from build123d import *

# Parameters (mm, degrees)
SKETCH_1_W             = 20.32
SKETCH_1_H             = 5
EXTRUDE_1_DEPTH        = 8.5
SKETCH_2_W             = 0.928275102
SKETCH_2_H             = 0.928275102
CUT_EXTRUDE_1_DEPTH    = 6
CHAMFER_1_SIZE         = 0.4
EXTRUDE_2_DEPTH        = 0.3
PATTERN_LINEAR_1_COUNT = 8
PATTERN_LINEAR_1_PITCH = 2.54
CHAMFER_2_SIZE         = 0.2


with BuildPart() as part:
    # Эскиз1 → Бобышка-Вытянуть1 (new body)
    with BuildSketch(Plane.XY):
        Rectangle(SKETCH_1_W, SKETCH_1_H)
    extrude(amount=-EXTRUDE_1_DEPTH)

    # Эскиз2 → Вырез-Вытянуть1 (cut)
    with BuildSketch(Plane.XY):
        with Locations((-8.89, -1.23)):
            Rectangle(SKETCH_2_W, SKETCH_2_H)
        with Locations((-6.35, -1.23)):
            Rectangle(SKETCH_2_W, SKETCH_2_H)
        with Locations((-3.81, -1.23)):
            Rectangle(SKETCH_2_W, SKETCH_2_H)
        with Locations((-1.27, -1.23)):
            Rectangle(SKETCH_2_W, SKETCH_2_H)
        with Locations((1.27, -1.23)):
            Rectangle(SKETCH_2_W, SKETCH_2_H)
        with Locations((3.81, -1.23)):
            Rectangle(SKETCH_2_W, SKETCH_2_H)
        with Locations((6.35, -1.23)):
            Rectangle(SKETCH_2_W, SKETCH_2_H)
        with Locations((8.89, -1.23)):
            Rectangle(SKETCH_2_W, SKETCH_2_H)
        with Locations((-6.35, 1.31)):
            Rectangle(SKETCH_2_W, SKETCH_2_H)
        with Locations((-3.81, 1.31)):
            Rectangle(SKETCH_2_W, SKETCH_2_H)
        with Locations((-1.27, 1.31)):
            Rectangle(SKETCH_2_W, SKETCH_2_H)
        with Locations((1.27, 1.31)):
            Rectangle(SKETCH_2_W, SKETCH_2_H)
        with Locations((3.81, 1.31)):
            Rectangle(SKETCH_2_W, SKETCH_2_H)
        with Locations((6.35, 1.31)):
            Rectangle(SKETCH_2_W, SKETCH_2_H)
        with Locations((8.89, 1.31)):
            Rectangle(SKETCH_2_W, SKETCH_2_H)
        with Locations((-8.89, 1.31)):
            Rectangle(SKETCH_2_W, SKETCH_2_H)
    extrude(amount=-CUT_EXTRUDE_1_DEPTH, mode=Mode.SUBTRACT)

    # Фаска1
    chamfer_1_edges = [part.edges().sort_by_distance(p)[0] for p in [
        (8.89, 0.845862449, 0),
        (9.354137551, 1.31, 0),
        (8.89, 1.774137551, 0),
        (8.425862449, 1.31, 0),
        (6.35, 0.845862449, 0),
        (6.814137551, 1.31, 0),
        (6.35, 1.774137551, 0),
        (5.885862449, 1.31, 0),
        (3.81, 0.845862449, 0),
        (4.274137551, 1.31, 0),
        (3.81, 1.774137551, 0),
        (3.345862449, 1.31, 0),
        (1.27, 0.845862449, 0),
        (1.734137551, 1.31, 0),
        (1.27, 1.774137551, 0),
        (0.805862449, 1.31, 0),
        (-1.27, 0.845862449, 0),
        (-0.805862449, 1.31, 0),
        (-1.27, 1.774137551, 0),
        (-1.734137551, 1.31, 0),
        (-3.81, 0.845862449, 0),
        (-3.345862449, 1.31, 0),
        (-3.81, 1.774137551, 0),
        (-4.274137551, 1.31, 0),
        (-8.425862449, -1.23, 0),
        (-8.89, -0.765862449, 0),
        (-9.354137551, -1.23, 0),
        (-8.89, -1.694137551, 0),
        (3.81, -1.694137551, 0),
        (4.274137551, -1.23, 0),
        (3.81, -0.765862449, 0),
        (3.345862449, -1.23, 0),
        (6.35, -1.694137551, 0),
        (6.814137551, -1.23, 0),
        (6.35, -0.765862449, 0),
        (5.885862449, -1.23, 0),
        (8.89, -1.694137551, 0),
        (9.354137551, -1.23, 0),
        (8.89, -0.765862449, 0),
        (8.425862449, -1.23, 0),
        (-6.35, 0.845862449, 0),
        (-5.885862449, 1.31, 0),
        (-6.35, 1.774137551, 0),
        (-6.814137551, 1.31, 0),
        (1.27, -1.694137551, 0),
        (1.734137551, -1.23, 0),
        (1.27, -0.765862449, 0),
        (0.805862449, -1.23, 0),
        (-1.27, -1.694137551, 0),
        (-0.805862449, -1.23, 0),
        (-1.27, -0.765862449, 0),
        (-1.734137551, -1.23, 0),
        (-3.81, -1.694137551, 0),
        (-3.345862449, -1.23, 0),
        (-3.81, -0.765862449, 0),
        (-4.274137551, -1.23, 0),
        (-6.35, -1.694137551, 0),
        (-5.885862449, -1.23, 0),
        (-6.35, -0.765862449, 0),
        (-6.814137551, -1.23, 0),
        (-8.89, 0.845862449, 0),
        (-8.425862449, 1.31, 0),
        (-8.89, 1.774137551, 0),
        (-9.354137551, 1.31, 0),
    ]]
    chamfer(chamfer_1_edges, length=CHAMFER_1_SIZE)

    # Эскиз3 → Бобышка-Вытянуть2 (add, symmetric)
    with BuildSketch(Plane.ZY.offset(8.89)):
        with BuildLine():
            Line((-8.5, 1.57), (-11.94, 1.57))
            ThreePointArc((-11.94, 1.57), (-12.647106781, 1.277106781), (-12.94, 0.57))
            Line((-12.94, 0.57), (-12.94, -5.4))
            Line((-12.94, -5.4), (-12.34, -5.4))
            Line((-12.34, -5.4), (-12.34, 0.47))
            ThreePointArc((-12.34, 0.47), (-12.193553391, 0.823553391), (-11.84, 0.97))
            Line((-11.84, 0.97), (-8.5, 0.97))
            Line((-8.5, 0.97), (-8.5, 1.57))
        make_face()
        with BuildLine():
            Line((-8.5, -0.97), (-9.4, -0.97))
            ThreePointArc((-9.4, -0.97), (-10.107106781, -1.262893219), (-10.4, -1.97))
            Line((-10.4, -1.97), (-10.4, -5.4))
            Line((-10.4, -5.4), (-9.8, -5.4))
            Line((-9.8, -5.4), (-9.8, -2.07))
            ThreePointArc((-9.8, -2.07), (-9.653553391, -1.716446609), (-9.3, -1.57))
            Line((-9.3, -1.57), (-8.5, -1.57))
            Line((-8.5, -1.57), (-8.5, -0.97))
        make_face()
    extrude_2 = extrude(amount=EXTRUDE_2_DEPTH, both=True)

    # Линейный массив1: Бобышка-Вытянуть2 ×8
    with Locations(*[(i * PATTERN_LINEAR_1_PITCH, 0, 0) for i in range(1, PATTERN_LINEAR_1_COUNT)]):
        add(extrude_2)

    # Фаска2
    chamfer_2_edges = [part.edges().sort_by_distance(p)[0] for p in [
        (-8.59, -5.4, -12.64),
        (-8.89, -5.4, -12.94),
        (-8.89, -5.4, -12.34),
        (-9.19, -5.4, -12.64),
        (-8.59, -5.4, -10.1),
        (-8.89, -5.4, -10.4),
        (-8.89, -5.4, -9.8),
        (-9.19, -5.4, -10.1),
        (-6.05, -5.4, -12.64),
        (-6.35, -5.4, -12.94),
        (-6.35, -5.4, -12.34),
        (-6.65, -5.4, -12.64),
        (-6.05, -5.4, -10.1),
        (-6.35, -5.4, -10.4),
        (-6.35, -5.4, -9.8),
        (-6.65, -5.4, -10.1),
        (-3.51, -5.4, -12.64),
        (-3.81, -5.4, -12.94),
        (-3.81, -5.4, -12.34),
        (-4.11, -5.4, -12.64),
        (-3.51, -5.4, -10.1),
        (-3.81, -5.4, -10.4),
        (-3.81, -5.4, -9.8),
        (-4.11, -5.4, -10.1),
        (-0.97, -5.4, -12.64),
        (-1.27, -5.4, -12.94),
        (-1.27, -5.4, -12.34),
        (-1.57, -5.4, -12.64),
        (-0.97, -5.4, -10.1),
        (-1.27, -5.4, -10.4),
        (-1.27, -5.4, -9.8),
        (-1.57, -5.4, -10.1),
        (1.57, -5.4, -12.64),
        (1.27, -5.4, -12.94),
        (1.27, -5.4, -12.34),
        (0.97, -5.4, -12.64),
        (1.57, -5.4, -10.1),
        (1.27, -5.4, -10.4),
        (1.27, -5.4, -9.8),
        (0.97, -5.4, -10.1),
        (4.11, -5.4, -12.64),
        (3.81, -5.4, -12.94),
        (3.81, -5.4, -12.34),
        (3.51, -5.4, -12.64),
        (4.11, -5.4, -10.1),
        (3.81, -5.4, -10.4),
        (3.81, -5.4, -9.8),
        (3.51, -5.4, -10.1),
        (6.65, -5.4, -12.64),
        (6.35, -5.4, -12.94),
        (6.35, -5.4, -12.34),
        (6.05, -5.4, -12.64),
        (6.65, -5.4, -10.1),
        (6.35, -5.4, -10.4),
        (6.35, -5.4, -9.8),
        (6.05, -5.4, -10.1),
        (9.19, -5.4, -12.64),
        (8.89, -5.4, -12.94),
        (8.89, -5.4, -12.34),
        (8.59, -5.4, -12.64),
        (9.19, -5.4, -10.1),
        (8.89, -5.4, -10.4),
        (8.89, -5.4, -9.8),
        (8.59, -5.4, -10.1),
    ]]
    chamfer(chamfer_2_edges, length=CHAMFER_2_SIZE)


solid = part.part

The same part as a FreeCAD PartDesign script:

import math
import FreeCAD as App
import Part
import Sketcher


def edges_at(feature, points):
    """Names of the edges that pass closest to the given points."""
    edges = feature.Shape.Edges
    near = lambda p: min(range(len(edges)), key=lambda i: edges[i].distToShape(Part.Vertex(*p))[0])
    return sorted({f"Edge{near(p) + 1}" for p in points})

doc = App.newDocument("Part")
body = doc.addObject("PartDesign::Body", "Body")

sketch1 = doc.addObject("Sketcher::SketchObject", "Sketch")
body.addObject(sketch1)
sketch1.AttachmentSupport = (doc.XY_Plane, [""])
sketch1.MapMode = "FlatFace"
sketch1.addGeometry(Part.LineSegment(App.Vector(-10.16, 2.5, 0), App.Vector(-10.16, -2.5, 0)), False)
sketch1.addGeometry(Part.LineSegment(App.Vector(-10.16, -2.5, 0), App.Vector(10.16, -2.5, 0)), False)
sketch1.addGeometry(Part.LineSegment(App.Vector(10.16, -2.5, 0), App.Vector(10.16, 2.5, 0)), False)
sketch1.addGeometry(Part.LineSegment(App.Vector(10.16, 2.5, 0), App.Vector(-10.16, 2.5, 0)), False)
sketch1.addConstraint(Sketcher.Constraint("Coincident", 0, 2, 1, 1))
sketch1.addConstraint(Sketcher.Constraint("Coincident", 1, 2, 2, 1))
sketch1.addConstraint(Sketcher.Constraint("Coincident", 2, 2, 3, 1))
sketch1.addConstraint(Sketcher.Constraint("Coincident", 3, 2, 0, 1))
sketch1.addConstraint(Sketcher.Constraint("Vertical", 0))
sketch1.addConstraint(Sketcher.Constraint("Horizontal", 1))
sketch1.addConstraint(Sketcher.Constraint("Vertical", 2))
sketch1.addConstraint(Sketcher.Constraint("Horizontal", 3))
sketch1.addConstraint(Sketcher.Constraint("Symmetric", 0, 2, 2, 2, -1, 1))
sketch1.addConstraint(Sketcher.Constraint("DistanceY", 0, 2, 0, 1, 5.0))
sketch1.addConstraint(Sketcher.Constraint("DistanceX", 1, 1, 1, 2, 20.32))
pad1 = doc.addObject("PartDesign::Pad", "Pad")
body.addObject(pad1)
pad1.Profile = sketch1
pad1.Length = 8.5
pad1.Reversed = True

sketch2 = doc.addObject("Sketcher::SketchObject", "Sketch001")
body.addObject(sketch2)
sketch2.AttachmentSupport = (doc.XY_Plane, [""])
sketch2.MapMode = "FlatFace"
sketch2.addGeometry(Part.LineSegment(App.Vector(-9.354138, -0.765862, 0), App.Vector(-9.354138, -1.694138, 0)), False)
sketch2.addGeometry(Part.LineSegment(App.Vector(-9.354138, -1.694138, 0), App.Vector(-8.425862, -1.694138, 0)), False)
sketch2.addGeometry(Part.LineSegment(App.Vector(-8.425862, -1.694138, 0), App.Vector(-8.425862, -0.765862, 0)), False)
sketch2.addGeometry(Part.LineSegment(App.Vector(-8.425862, -0.765862, 0), App.Vector(-9.354138, -0.765862, 0)), False)
sketch2.addGeometry(Part.LineSegment(App.Vector(-6.814138, -0.765862, 0), App.Vector(-6.814138, -1.694138, 0)), False)
sketch2.addGeometry(Part.LineSegment(App.Vector(-6.814138, -1.694138, 0), App.Vector(-5.885862, -1.694138, 0)), False)
sketch2.addGeometry(Part.LineSegment(App.Vector(-5.885862, -1.694138, 0), App.Vector(-5.885862, -0.765862, 0)), False)
sketch2.addGeometry(Part.LineSegment(App.Vector(-5.885862, -0.765862, 0), App.Vector(-6.814138, -0.765862, 0)), False)
sketch2.addGeometry(Part.LineSegment(App.Vector(-4.274138, -0.765862, 0), App.Vector(-4.274138, -1.694138, 0)), False)
sketch2.addGeometry(Part.LineSegment(App.Vector(-4.274138, -1.694138, 0), App.Vector(-3.345862, -1.694138, 0)), False)
sketch2.addGeometry(Part.LineSegment(App.Vector(-3.345862, -1.694138, 0), App.Vector(-3.345862, -0.765862, 0)), False)
sketch2.addGeometry(Part.LineSegment(App.Vector(-3.345862, -0.765862, 0), App.Vector(-4.274138, -0.765862, 0)), False)
sketch2.addGeometry(Part.LineSegment(App.Vector(-1.734138, -0.765862, 0), App.Vector(-1.734138, -1.694138, 0)), False)
sketch2.addGeometry(Part.LineSegment(App.Vector(-1.734138, -1.694138, 0), App.Vector(-0.805862, -1.694138, 0)), False)
sketch2.addGeometry(Part.LineSegment(App.Vector(-0.805862, -1.694138, 0), App.Vector(-0.805862, -0.765862, 0)), False)
sketch2.addGeometry(Part.LineSegment(App.Vector(-0.805862, -0.765862, 0), App.Vector(-1.734138, -0.765862, 0)), False)
sketch2.addGeometry(Part.LineSegment(App.Vector(0.805862, -0.765862, 0), App.Vector(0.805862, -1.694138, 0)), False)
sketch2.addGeometry(Part.LineSegment(App.Vector(0.805862, -1.694138, 0), App.Vector(1.734138, -1.694138, 0)), False)
sketch2.addGeometry(Part.LineSegment(App.Vector(1.734138, -1.694138, 0), App.Vector(1.734138, -0.765862, 0)), False)
sketch2.addGeometry(Part.LineSegment(App.Vector(1.734138, -0.765862, 0), App.Vector(0.805862, -0.765862, 0)), False)
sketch2.addGeometry(Part.LineSegment(App.Vector(3.345862, -0.765862, 0), App.Vector(3.345862, -1.694138, 0)), False)
sketch2.addGeometry(Part.LineSegment(App.Vector(3.345862, -1.694138, 0), App.Vector(4.274138, -1.694138, 0)), False)
sketch2.addGeometry(Part.LineSegment(App.Vector(4.274138, -1.694138, 0), App.Vector(4.274138, -0.765862, 0)), False)
sketch2.addGeometry(Part.LineSegment(App.Vector(4.274138, -0.765862, 0), App.Vector(3.345862, -0.765862, 0)), False)
sketch2.addGeometry(Part.LineSegment(App.Vector(5.885862, -0.765862, 0), App.Vector(5.885862, -1.694138, 0)), False)
sketch2.addGeometry(Part.LineSegment(App.Vector(5.885862, -1.694138, 0), App.Vector(6.814138, -1.694138, 0)), False)
sketch2.addGeometry(Part.LineSegment(App.Vector(6.814138, -1.694138, 0), App.Vector(6.814138, -0.765862, 0)), False)
sketch2.addGeometry(Part.LineSegment(App.Vector(6.814138, -0.765862, 0), App.Vector(5.885862, -0.765862, 0)), False)
sketch2.addGeometry(Part.LineSegment(App.Vector(8.425862, -0.765862, 0), App.Vector(8.425862, -1.694138, 0)), False)
sketch2.addGeometry(Part.LineSegment(App.Vector(8.425862, -1.694138, 0), App.Vector(9.354138, -1.694138, 0)), False)
sketch2.addGeometry(Part.LineSegment(App.Vector(9.354138, -1.694138, 0), App.Vector(9.354138, -0.765862, 0)), False)
sketch2.addGeometry(Part.LineSegment(App.Vector(9.354138, -0.765862, 0), App.Vector(8.425862, -0.765862, 0)), False)
sketch2.addGeometry(Part.LineSegment(App.Vector(-6.814138, 1.774138, 0), App.Vector(-6.814138, 0.845862, 0)), False)
sketch2.addGeometry(Part.LineSegment(App.Vector(-6.814138, 0.845862, 0), App.Vector(-5.885862, 0.845862, 0)), False)
sketch2.addGeometry(Part.LineSegment(App.Vector(-5.885862, 0.845862, 0), App.Vector(-5.885862, 1.774138, 0)), False)
sketch2.addGeometry(Part.LineSegment(App.Vector(-5.885862, 1.774138, 0), App.Vector(-6.814138, 1.774138, 0)), False)
sketch2.addGeometry(Part.LineSegment(App.Vector(-4.274138, 1.774138, 0), App.Vector(-4.274138, 0.845862, 0)), False)
sketch2.addGeometry(Part.LineSegment(App.Vector(-4.274138, 0.845862, 0), App.Vector(-3.345862, 0.845862, 0)), False)
sketch2.addGeometry(Part.LineSegment(App.Vector(-3.345862, 0.845862, 0), App.Vector(-3.345862, 1.774138, 0)), False)
sketch2.addGeometry(Part.LineSegment(App.Vector(-3.345862, 1.774138, 0), App.Vector(-4.274138, 1.774138, 0)), False)
sketch2.addGeometry(Part.LineSegment(App.Vector(-1.734138, 1.774138, 0), App.Vector(-1.734138, 0.845862, 0)), False)
sketch2.addGeometry(Part.LineSegment(App.Vector(-1.734138, 0.845862, 0), App.Vector(-0.805862, 0.845862, 0)), False)
sketch2.addGeometry(Part.LineSegment(App.Vector(-0.805862, 0.845862, 0), App.Vector(-0.805862, 1.774138, 0)), False)
sketch2.addGeometry(Part.LineSegment(App.Vector(-0.805862, 1.774138, 0), App.Vector(-1.734138, 1.774138, 0)), False)
sketch2.addGeometry(Part.LineSegment(App.Vector(0.805862, 1.774138, 0), App.Vector(0.805862, 0.845862, 0)), False)
sketch2.addGeometry(Part.LineSegment(App.Vector(0.805862, 0.845862, 0), App.Vector(1.734138, 0.845862, 0)), False)
sketch2.addGeometry(Part.LineSegment(App.Vector(1.734138, 0.845862, 0), App.Vector(1.734138, 1.774138, 0)), False)
sketch2.addGeometry(Part.LineSegment(App.Vector(1.734138, 1.774138, 0), App.Vector(0.805862, 1.774138, 0)), False)
sketch2.addGeometry(Part.LineSegment(App.Vector(3.345862, 1.774138, 0), App.Vector(3.345862, 0.845862, 0)), False)
sketch2.addGeometry(Part.LineSegment(App.Vector(3.345862, 0.845862, 0), App.Vector(4.274138, 0.845862, 0)), False)
sketch2.addGeometry(Part.LineSegment(App.Vector(4.274138, 0.845862, 0), App.Vector(4.274138, 1.774138, 0)), False)
sketch2.addGeometry(Part.LineSegment(App.Vector(4.274138, 1.774138, 0), App.Vector(3.345862, 1.774138, 0)), False)
sketch2.addGeometry(Part.LineSegment(App.Vector(5.885862, 1.774138, 0), App.Vector(5.885862, 0.845862, 0)), False)
sketch2.addGeometry(Part.LineSegment(App.Vector(5.885862, 0.845862, 0), App.Vector(6.814138, 0.845862, 0)), False)
sketch2.addGeometry(Part.LineSegment(App.Vector(6.814138, 0.845862, 0), App.Vector(6.814138, 1.774138, 0)), False)
sketch2.addGeometry(Part.LineSegment(App.Vector(6.814138, 1.774138, 0), App.Vector(5.885862, 1.774138, 0)), False)
sketch2.addGeometry(Part.LineSegment(App.Vector(8.425862, 1.774138, 0), App.Vector(8.425862, 0.845862, 0)), False)
sketch2.addGeometry(Part.LineSegment(App.Vector(8.425862, 0.845862, 0), App.Vector(9.354138, 0.845862, 0)), False)
sketch2.addGeometry(Part.LineSegment(App.Vector(9.354138, 0.845862, 0), App.Vector(9.354138, 1.774138, 0)), False)
sketch2.addGeometry(Part.LineSegment(App.Vector(9.354138, 1.774138, 0), App.Vector(8.425862, 1.774138, 0)), False)
sketch2.addGeometry(Part.LineSegment(App.Vector(-9.354138, 1.774138, 0), App.Vector(-9.354138, 0.845862, 0)), False)
sketch2.addGeometry(Part.LineSegment(App.Vector(-9.354138, 0.845862, 0), App.Vector(-8.425862, 0.845862, 0)), False)
sketch2.addGeometry(Part.LineSegment(App.Vector(-8.425862, 0.845862, 0), App.Vector(-8.425862, 1.774138, 0)), False)
sketch2.addGeometry(Part.LineSegment(App.Vector(-8.425862, 1.774138, 0), App.Vector(-9.354138, 1.774138, 0)), False)
sketch2.addConstraint(Sketcher.Constraint("Coincident", 0, 2, 1, 1))
sketch2.addConstraint(Sketcher.Constraint("Coincident", 1, 2, 2, 1))
sketch2.addConstraint(Sketcher.Constraint("Coincident", 2, 2, 3, 1))
sketch2.addConstraint(Sketcher.Constraint("Coincident", 3, 2, 0, 1))
sketch2.addConstraint(Sketcher.Constraint("Coincident", 4, 2, 5, 1))
sketch2.addConstraint(Sketcher.Constraint("Coincident", 5, 2, 6, 1))
sketch2.addConstraint(Sketcher.Constraint("Coincident", 6, 2, 7, 1))
sketch2.addConstraint(Sketcher.Constraint("Coincident", 7, 2, 4, 1))
sketch2.addConstraint(Sketcher.Constraint("Coincident", 8, 2, 9, 1))
sketch2.addConstraint(Sketcher.Constraint("Coincident", 9, 2, 10, 1))
sketch2.addConstraint(Sketcher.Constraint("Coincident", 10, 2, 11, 1))
sketch2.addConstraint(Sketcher.Constraint("Coincident", 11, 2, 8, 1))
sketch2.addConstraint(Sketcher.Constraint("Coincident", 12, 2, 13, 1))
sketch2.addConstraint(Sketcher.Constraint("Coincident", 13, 2, 14, 1))
sketch2.addConstraint(Sketcher.Constraint("Coincident", 14, 2, 15, 1))
sketch2.addConstraint(Sketcher.Constraint("Coincident", 15, 2, 12, 1))
sketch2.addConstraint(Sketcher.Constraint("Coincident", 16, 2, 17, 1))
sketch2.addConstraint(Sketcher.Constraint("Coincident", 17, 2, 18, 1))
sketch2.addConstraint(Sketcher.Constraint("Coincident", 18, 2, 19, 1))
sketch2.addConstraint(Sketcher.Constraint("Coincident", 19, 2, 16, 1))
sketch2.addConstraint(Sketcher.Constraint("Coincident", 20, 2, 21, 1))
sketch2.addConstraint(Sketcher.Constraint("Coincident", 21, 2, 22, 1))
sketch2.addConstraint(Sketcher.Constraint("Coincident", 22, 2, 23, 1))
sketch2.addConstraint(Sketcher.Constraint("Coincident", 23, 2, 20, 1))
sketch2.addConstraint(Sketcher.Constraint("Coincident", 24, 2, 25, 1))
sketch2.addConstraint(Sketcher.Constraint("Coincident", 25, 2, 26, 1))
sketch2.addConstraint(Sketcher.Constraint("Coincident", 26, 2, 27, 1))
sketch2.addConstraint(Sketcher.Constraint("Coincident", 27, 2, 24, 1))
sketch2.addConstraint(Sketcher.Constraint("Coincident", 28, 2, 29, 1))
sketch2.addConstraint(Sketcher.Constraint("Coincident", 29, 2, 30, 1))
sketch2.addConstraint(Sketcher.Constraint("Coincident", 30, 2, 31, 1))
sketch2.addConstraint(Sketcher.Constraint("Coincident", 31, 2, 28, 1))
sketch2.addConstraint(Sketcher.Constraint("Coincident", 32, 2, 33, 1))
sketch2.addConstraint(Sketcher.Constraint("Coincident", 33, 2, 34, 1))
sketch2.addConstraint(Sketcher.Constraint("Coincident", 34, 2, 35, 1))
sketch2.addConstraint(Sketcher.Constraint("Coincident", 35, 2, 32, 1))
sketch2.addConstraint(Sketcher.Constraint("Coincident", 36, 2, 37, 1))
sketch2.addConstraint(Sketcher.Constraint("Coincident", 37, 2, 38, 1))
sketch2.addConstraint(Sketcher.Constraint("Coincident", 38, 2, 39, 1))
sketch2.addConstraint(Sketcher.Constraint("Coincident", 39, 2, 36, 1))
sketch2.addConstraint(Sketcher.Constraint("Coincident", 40, 2, 41, 1))
sketch2.addConstraint(Sketcher.Constraint("Coincident", 41, 2, 42, 1))
sketch2.addConstraint(Sketcher.Constraint("Coincident", 42, 2, 43, 1))
sketch2.addConstraint(Sketcher.Constraint("Coincident", 43, 2, 40, 1))
sketch2.addConstraint(Sketcher.Constraint("Coincident", 44, 2, 45, 1))
sketch2.addConstraint(Sketcher.Constraint("Coincident", 45, 2, 46, 1))
sketch2.addConstraint(Sketcher.Constraint("Coincident", 46, 2, 47, 1))
sketch2.addConstraint(Sketcher.Constraint("Coincident", 47, 2, 44, 1))
sketch2.addConstraint(Sketcher.Constraint("Coincident", 48, 2, 49, 1))
sketch2.addConstraint(Sketcher.Constraint("Coincident", 49, 2, 50, 1))
sketch2.addConstraint(Sketcher.Constraint("Coincident", 50, 2, 51, 1))
sketch2.addConstraint(Sketcher.Constraint("Coincident", 51, 2, 48, 1))
sketch2.addConstraint(Sketcher.Constraint("Coincident", 52, 2, 53, 1))
sketch2.addConstraint(Sketcher.Constraint("Coincident", 53, 2, 54, 1))
sketch2.addConstraint(Sketcher.Constraint("Coincident", 54, 2, 55, 1))
sketch2.addConstraint(Sketcher.Constraint("Coincident", 55, 2, 52, 1))
sketch2.addConstraint(Sketcher.Constraint("Coincident", 56, 2, 57, 1))
sketch2.addConstraint(Sketcher.Constraint("Coincident", 57, 2, 58, 1))
sketch2.addConstraint(Sketcher.Constraint("Coincident", 58, 2, 59, 1))
sketch2.addConstraint(Sketcher.Constraint("Coincident", 59, 2, 56, 1))
sketch2.addConstraint(Sketcher.Constraint("Coincident", 60, 2, 61, 1))
sketch2.addConstraint(Sketcher.Constraint("Coincident", 61, 2, 62, 1))
sketch2.addConstraint(Sketcher.Constraint("Coincident", 62, 2, 63, 1))
sketch2.addConstraint(Sketcher.Constraint("Coincident", 63, 2, 60, 1))
sketch2.addConstraint(Sketcher.Constraint("Vertical", 0))
sketch2.addConstraint(Sketcher.Constraint("Horizontal", 1))
sketch2.addConstraint(Sketcher.Constraint("Vertical", 2))
sketch2.addConstraint(Sketcher.Constraint("Horizontal", 3))
sketch2.addConstraint(Sketcher.Constraint("Vertical", 4))
sketch2.addConstraint(Sketcher.Constraint("Horizontal", 5))
sketch2.addConstraint(Sketcher.Constraint("Vertical", 6))
sketch2.addConstraint(Sketcher.Constraint("Horizontal", 7))
sketch2.addConstraint(Sketcher.Constraint("Vertical", 8))
sketch2.addConstraint(Sketcher.Constraint("Horizontal", 9))
sketch2.addConstraint(Sketcher.Constraint("Vertical", 10))
sketch2.addConstraint(Sketcher.Constraint("Horizontal", 11))
sketch2.addConstraint(Sketcher.Constraint("Vertical", 12))
sketch2.addConstraint(Sketcher.Constraint("Horizontal", 13))
sketch2.addConstraint(Sketcher.Constraint("Vertical", 14))
sketch2.addConstraint(Sketcher.Constraint("Horizontal", 15))
sketch2.addConstraint(Sketcher.Constraint("Vertical", 16))
sketch2.addConstraint(Sketcher.Constraint("Horizontal", 17))
sketch2.addConstraint(Sketcher.Constraint("Vertical", 18))
sketch2.addConstraint(Sketcher.Constraint("Horizontal", 19))
sketch2.addConstraint(Sketcher.Constraint("Vertical", 20))
sketch2.addConstraint(Sketcher.Constraint("Horizontal", 21))
sketch2.addConstraint(Sketcher.Constraint("Vertical", 22))
sketch2.addConstraint(Sketcher.Constraint("Horizontal", 23))
sketch2.addConstraint(Sketcher.Constraint("Vertical", 24))
sketch2.addConstraint(Sketcher.Constraint("Horizontal", 25))
sketch2.addConstraint(Sketcher.Constraint("Vertical", 26))
sketch2.addConstraint(Sketcher.Constraint("Horizontal", 27))
sketch2.addConstraint(Sketcher.Constraint("Vertical", 28))
sketch2.addConstraint(Sketcher.Constraint("Horizontal", 29))
sketch2.addConstraint(Sketcher.Constraint("Vertical", 30))
sketch2.addConstraint(Sketcher.Constraint("Horizontal", 31))
sketch2.addConstraint(Sketcher.Constraint("Vertical", 32))
sketch2.addConstraint(Sketcher.Constraint("Horizontal", 33))
sketch2.addConstraint(Sketcher.Constraint("Vertical", 34))
sketch2.addConstraint(Sketcher.Constraint("Horizontal", 35))
sketch2.addConstraint(Sketcher.Constraint("Vertical", 36))
sketch2.addConstraint(Sketcher.Constraint("Horizontal", 37))
sketch2.addConstraint(Sketcher.Constraint("Vertical", 38))
sketch2.addConstraint(Sketcher.Constraint("Horizontal", 39))
sketch2.addConstraint(Sketcher.Constraint("Vertical", 40))
sketch2.addConstraint(Sketcher.Constraint("Horizontal", 41))
sketch2.addConstraint(Sketcher.Constraint("Vertical", 42))
sketch2.addConstraint(Sketcher.Constraint("Horizontal", 43))
sketch2.addConstraint(Sketcher.Constraint("Vertical", 44))
sketch2.addConstraint(Sketcher.Constraint("Horizontal", 45))
sketch2.addConstraint(Sketcher.Constraint("Vertical", 46))
sketch2.addConstraint(Sketcher.Constraint("Horizontal", 47))
sketch2.addConstraint(Sketcher.Constraint("Vertical", 48))
sketch2.addConstraint(Sketcher.Constraint("Horizontal", 49))
sketch2.addConstraint(Sketcher.Constraint("Vertical", 50))
sketch2.addConstraint(Sketcher.Constraint("Horizontal", 51))
sketch2.addConstraint(Sketcher.Constraint("Vertical", 52))
sketch2.addConstraint(Sketcher.Constraint("Horizontal", 53))
sketch2.addConstraint(Sketcher.Constraint("Vertical", 54))
sketch2.addConstraint(Sketcher.Constraint("Horizontal", 55))
sketch2.addConstraint(Sketcher.Constraint("Vertical", 56))
sketch2.addConstraint(Sketcher.Constraint("Horizontal", 57))
sketch2.addConstraint(Sketcher.Constraint("Vertical", 58))
sketch2.addConstraint(Sketcher.Constraint("Horizontal", 59))
sketch2.addConstraint(Sketcher.Constraint("Vertical", 60))
sketch2.addConstraint(Sketcher.Constraint("Horizontal", 61))
sketch2.addConstraint(Sketcher.Constraint("Vertical", 62))
sketch2.addConstraint(Sketcher.Constraint("Horizontal", 63))
sketch2.addConstraint(Sketcher.Constraint("Symmetric", 13, 2, 16, 2, -2))
sketch2.addConstraint(Sketcher.Constraint("Symmetric", 15, 2, 18, 2, -2))
sketch2.addConstraint(Sketcher.Constraint("Symmetric", 9, 2, 20, 2, -2))
sketch2.addConstraint(Sketcher.Constraint("Symmetric", 11, 2, 22, 2, -2))
sketch2.addConstraint(Sketcher.Constraint("Symmetric", 5, 2, 24, 2, -2))
sketch2.addConstraint(Sketcher.Constraint("Symmetric", 7, 2, 26, 2, -2))
sketch2.addConstraint(Sketcher.Constraint("Symmetric", 1, 2, 28, 2, -2))
sketch2.addConstraint(Sketcher.Constraint("Symmetric", 3, 2, 30, 2, -2))
sketch2.addConstraint(Sketcher.Constraint("Symmetric", 41, 2, 44, 2, -2))
sketch2.addConstraint(Sketcher.Constraint("Symmetric", 43, 2, 46, 2, -2))
sketch2.addConstraint(Sketcher.Constraint("Symmetric", 37, 2, 48, 2, -2))
sketch2.addConstraint(Sketcher.Constraint("Symmetric", 39, 2, 50, 2, -2))
sketch2.addConstraint(Sketcher.Constraint("Symmetric", 33, 2, 52, 2, -2))
sketch2.addConstraint(Sketcher.Constraint("Symmetric", 35, 2, 54, 2, -2))
sketch2.addConstraint(Sketcher.Constraint("Symmetric", 57, 2, 60, 2, -2))
sketch2.addConstraint(Sketcher.Constraint("Symmetric", 59, 2, 62, 2, -2))
sketch2.addConstraint(Sketcher.Constraint("Horizontal", 1, 2, 4, 2))
sketch2.addConstraint(Sketcher.Constraint("Horizontal", 3, 2, 6, 2))
sketch2.addConstraint(Sketcher.Constraint("Horizontal", 5, 2, 8, 2))
sketch2.addConstraint(Sketcher.Constraint("Horizontal", 7, 2, 10, 2))
sketch2.addConstraint(Sketcher.Constraint("Horizontal", 9, 2, 12, 2))
sketch2.addConstraint(Sketcher.Constraint("Horizontal", 11, 2, 14, 2))
sketch2.addConstraint(Sketcher.Constraint("Horizontal", 33, 2, 36, 2))
sketch2.addConstraint(Sketcher.Constraint("Horizontal", 35, 2, 38, 2))
sketch2.addConstraint(Sketcher.Constraint("Horizontal", 37, 2, 40, 2))
sketch2.addConstraint(Sketcher.Constraint("Horizontal", 39, 2, 42, 2))
sketch2.addConstraint(Sketcher.Constraint("Horizontal", 53, 2, 56, 2))
sketch2.addConstraint(Sketcher.Constraint("Horizontal", 55, 2, 58, 2))
sketch2.addConstraint(Sketcher.Constraint("Vertical", 7, 2, 32, 2))
sketch2.addConstraint(Sketcher.Constraint("Vertical", 6, 2, 33, 2))
sketch2.addConstraint(Sketcher.Constraint("Vertical", 11, 2, 36, 2))
sketch2.addConstraint(Sketcher.Constraint("Vertical", 10, 2, 37, 2))
sketch2.addConstraint(Sketcher.Constraint("Vertical", 15, 2, 40, 2))
sketch2.addConstraint(Sketcher.Constraint("Vertical", 14, 2, 41, 2))
sketch2.addConstraint(Sketcher.Constraint("Vertical", 31, 2, 56, 2))
sketch2.addConstraint(Sketcher.Constraint("Vertical", 30, 2, 57, 2))
sketch2.addConstraint(Sketcher.Constraint("Equal", 3, 5))
sketch2.addConstraint(Sketcher.Constraint("Equal", 7, 9))
sketch2.addConstraint(Sketcher.Constraint("Equal", 11, 13))
sketch2.addConstraint(Sketcher.Constraint("Equal", 63, 0))
sketch2.addConstraint(Sketcher.Constraint("Equal", 30, 32))
sketch2.addConstraint(Sketcher.Constraint("DistanceX", 1, 1, 1, 2, 0.928275))
sketch2.addConstraint(Sketcher.Constraint("DistanceX", 0, 2, -1, 1, 9.354138))
sketch2.addConstraint(Sketcher.Constraint("DistanceY", 0, 2, -1, 1, 1.694138))
sketch2.addConstraint(Sketcher.Constraint("DistanceX", 4, 2, -1, 1, 6.814138))
sketch2.addConstraint(Sketcher.Constraint("DistanceX", 8, 2, -1, 1, 4.274138))
sketch2.addConstraint(Sketcher.Constraint("DistanceX", 12, 2, -1, 1, 1.734138))
sketch2.addConstraint(Sketcher.Constraint("DistanceY", -1, 1, 32, 2, 0.845862))
pocket1 = doc.addObject("PartDesign::Pocket", "Pocket")
body.addObject(pocket1)
pocket1.Profile = sketch2
pocket1.Length = 6
doc.recompute()

chamfer = doc.addObject("PartDesign::Chamfer", "Chamfer")
body.addObject(chamfer)
chamfer.Base = (pocket1, edges_at(pocket1, [
    (8.89, 0.846, 0),
    (9.354, 1.31, 0),
    (8.89, 1.774, 0),
    (8.426, 1.31, 0),
    (6.35, 0.846, 0),
    (6.814, 1.31, 0),
    (6.35, 1.774, 0),
    (5.886, 1.31, 0),
    (3.81, 0.846, 0),
    (4.274, 1.31, 0),
    (3.81, 1.774, 0),
    (3.346, 1.31, 0),
    (1.27, 0.846, 0),
    (1.734, 1.31, 0),
    (1.27, 1.774, 0),
    (0.806, 1.31, 0),
    (-1.27, 0.846, 0),
    (-0.806, 1.31, 0),
    (-1.27, 1.774, 0),
    (-1.734, 1.31, 0),
    (-3.81, 0.846, 0),
    (-3.346, 1.31, 0),
    (-3.81, 1.774, 0),
    (-4.274, 1.31, 0),
    (-8.426, -1.23, 0),
    (-8.89, -0.766, 0),
    (-9.354, -1.23, 0),
    (-8.89, -1.694, 0),
    (3.81, -1.694, 0),
    (4.274, -1.23, 0),
    (3.81, -0.766, 0),
    (3.346, -1.23, 0),
    (6.35, -1.694, 0),
    (6.814, -1.23, 0),
    (6.35, -0.766, 0),
    (5.886, -1.23, 0),
    (8.89, -1.694, 0),
    (9.354, -1.23, 0),
    (8.89, -0.766, 0),
    (8.426, -1.23, 0),
    (-6.35, 0.846, 0),
    (-5.886, 1.31, 0),
    (-6.35, 1.774, 0),
    (-6.814, 1.31, 0),
    (1.27, -1.694, 0),
    (1.734, -1.23, 0),
    (1.27, -0.766, 0),
    (0.806, -1.23, 0),
    (-1.27, -1.694, 0),
    (-0.806, -1.23, 0),
    (-1.27, -0.766, 0),
    (-1.734, -1.23, 0),
    (-3.81, -1.694, 0),
    (-3.346, -1.23, 0),
    (-3.81, -0.766, 0),
    (-4.274, -1.23, 0),
    (-6.35, -1.694, 0),
    (-5.886, -1.23, 0),
    (-6.35, -0.766, 0),
    (-6.814, -1.23, 0),
    (-8.89, 0.846, 0),
    (-8.426, 1.31, 0),
    (-8.89, 1.774, 0),
    (-9.354, 1.31, 0),
]))
chamfer.Size = 0.4

sketch3 = doc.addObject("Sketcher::SketchObject", "Sketch002")
body.addObject(sketch3)
sketch3.AttachmentSupport = (doc.YZ_Plane, [""])
sketch3.MapMode = "FlatFace"
sketch3.AttachmentOffset = App.Placement(App.Vector(0, 0, -8.89), App.Rotation())
sketch3.addGeometry(Part.LineSegment(App.Vector(1.57, -8.5, 0), App.Vector(1.57, -11.94, 0)), False)
sketch3.addGeometry(Part.ArcOfCircle(Part.Circle(App.Vector(0.57, -11.94, 0), App.Vector(0, 0, 1), 1), math.radians(-90), math.radians(0)), False)
sketch3.addGeometry(Part.LineSegment(App.Vector(0.57, -12.94, 0), App.Vector(-5.4, -12.94, 0)), False)
sketch3.addGeometry(Part.LineSegment(App.Vector(-5.4, -12.94, 0), App.Vector(-5.4, -12.34, 0)), False)
sketch3.addGeometry(Part.LineSegment(App.Vector(-5.4, -12.34, 0), App.Vector(0.47, -12.34, 0)), False)
sketch3.addGeometry(Part.ArcOfCircle(Part.Circle(App.Vector(0.47, -11.84, 0), App.Vector(0, 0, 1), 0.5), math.radians(-90), math.radians(0)), False)
sketch3.addGeometry(Part.LineSegment(App.Vector(0.97, -11.84, 0), App.Vector(0.97, -8.5, 0)), False)
sketch3.addGeometry(Part.LineSegment(App.Vector(0.97, -8.5, 0), App.Vector(1.57, -8.5, 0)), False)
sketch3.addGeometry(Part.LineSegment(App.Vector(-0.97, -8.5, 0), App.Vector(-0.97, -9.4, 0)), False)
sketch3.addGeometry(Part.ArcOfCircle(Part.Circle(App.Vector(-1.97, -9.4, 0), App.Vector(0, 0, 1), 1), math.radians(-90), math.radians(0)), False)
sketch3.addGeometry(Part.LineSegment(App.Vector(-1.97, -10.4, 0), App.Vector(-5.4, -10.4, 0)), False)
sketch3.addGeometry(Part.LineSegment(App.Vector(-5.4, -10.4, 0), App.Vector(-5.4, -9.8, 0)), False)
sketch3.addGeometry(Part.LineSegment(App.Vector(-5.4, -9.8, 0), App.Vector(-2.07, -9.8, 0)), False)
sketch3.addGeometry(Part.ArcOfCircle(Part.Circle(App.Vector(-2.07, -9.3, 0), App.Vector(0, 0, 1), 0.5), math.radians(-90), math.radians(0)), False)
sketch3.addGeometry(Part.LineSegment(App.Vector(-1.57, -9.3, 0), App.Vector(-1.57, -8.5, 0)), False)
sketch3.addGeometry(Part.LineSegment(App.Vector(-1.57, -8.5, 0), App.Vector(-0.97, -8.5, 0)), False)
sketch3.addConstraint(Sketcher.Constraint("Tangent", 0, 2, 1, 2))
sketch3.addConstraint(Sketcher.Constraint("Tangent", 1, 1, 2, 1))
sketch3.addConstraint(Sketcher.Constraint("Coincident", 2, 2, 3, 1))
sketch3.addConstraint(Sketcher.Constraint("Coincident", 3, 2, 4, 1))
sketch3.addConstraint(Sketcher.Constraint("Tangent", 4, 2, 5, 1))
sketch3.addConstraint(Sketcher.Constraint("Tangent", 5, 2, 6, 1))
sketch3.addConstraint(Sketcher.Constraint("Coincident", 6, 2, 7, 1))
sketch3.addConstraint(Sketcher.Constraint("Coincident", 7, 2, 0, 1))
sketch3.addConstraint(Sketcher.Constraint("Tangent", 8, 2, 9, 2))
sketch3.addConstraint(Sketcher.Constraint("Tangent", 9, 1, 10, 1))
sketch3.addConstraint(Sketcher.Constraint("Coincident", 10, 2, 11, 1))
sketch3.addConstraint(Sketcher.Constraint("Coincident", 11, 2, 12, 1))
sketch3.addConstraint(Sketcher.Constraint("Tangent", 12, 2, 13, 1))
sketch3.addConstraint(Sketcher.Constraint("Tangent", 13, 2, 14, 1))
sketch3.addConstraint(Sketcher.Constraint("Coincident", 14, 2, 15, 1))
sketch3.addConstraint(Sketcher.Constraint("Coincident", 15, 2, 8, 1))
sketch3.addConstraint(Sketcher.Constraint("Vertical", 0))
sketch3.addConstraint(Sketcher.Constraint("Horizontal", 2))
sketch3.addConstraint(Sketcher.Constraint("Vertical", 3))
sketch3.addConstraint(Sketcher.Constraint("Horizontal", 4))
sketch3.addConstraint(Sketcher.Constraint("Vertical", 6))
sketch3.addConstraint(Sketcher.Constraint("Horizontal", 7))
sketch3.addConstraint(Sketcher.Constraint("Vertical", 8))
sketch3.addConstraint(Sketcher.Constraint("Horizontal", 10))
sketch3.addConstraint(Sketcher.Constraint("Vertical", 11))
sketch3.addConstraint(Sketcher.Constraint("Horizontal", 12))
sketch3.addConstraint(Sketcher.Constraint("Vertical", 14))
sketch3.addConstraint(Sketcher.Constraint("Horizontal", 15))
sketch3.addConstraint(Sketcher.Constraint("Equal", 1, 9))
sketch3.addConstraint(Sketcher.Constraint("Equal", 5, 13))
sketch3.addConstraint(Sketcher.Constraint("Symmetric", 7, 2, 14, 2, -2))
sketch3.addConstraint(Sketcher.Constraint("Vertical", 3, 2, 10, 2))
sketch3.addConstraint(Sketcher.Constraint("Equal", 7, 15))
sketch3.addConstraint(Sketcher.Constraint("Equal", 15, 3))
sketch3.addConstraint(Sketcher.Constraint("Equal", 3, 11))
sketch3.addConstraint(Sketcher.Constraint("Radius", 1, 1.0))
sketch3.addConstraint(Sketcher.Constraint("Radius", 5, 0.5))
sketch3.addConstraint(Sketcher.Constraint("DistanceX", 7, 1, 7, 2, 0.6))
sketch3.addConstraint(Sketcher.Constraint("DistanceY", 8, 2, 8, 1, 0.9))
sketch3.addConstraint(Sketcher.Constraint("DistanceX", 2, 2, 2, 1, 5.97))
sketch3.addConstraint(Sketcher.Constraint("DistanceX", 10, 2, 10, 1, 3.43))
sketch3.addConstraint(Sketcher.Constraint("DistanceY", 0, 2, 0, 1, 3.44))
sketch3.addConstraint(Sketcher.Constraint("DistanceY", 9, 3, -1, 1, 9.4))
pad2 = doc.addObject("PartDesign::Pad", "Pad001")
body.addObject(pad2)
pad2.Profile = sketch3
pad2.Length = 0.6
pad2.Midplane = True
doc.recompute()

linearpattern = doc.addObject("PartDesign::LinearPattern", "LinearPattern")
body.addObject(linearpattern)
linearpattern.Originals = [pad2]
linearpattern.Direction = (doc.X_Axis, [""])
linearpattern.Mode = "offset"
linearpattern.Offset = 2.54
linearpattern.Occurrences = 8
body.Tip = linearpattern
doc.recompute()

chamfer2 = doc.addObject("PartDesign::Chamfer", "Chamfer001")
body.addObject(chamfer2)
chamfer2.Base = (linearpattern, edges_at(linearpattern, [
    (-8.59, -5.4, -12.64),
    (-8.89, -5.4, -12.94),
    (-8.89, -5.4, -12.34),
    (-9.19, -5.4, -12.64),
    (-8.59, -5.4, -10.1),
    (-8.89, -5.4, -10.4),
    (-8.89, -5.4, -9.8),
    (-9.19, -5.4, -10.1),
    (-6.05, -5.4, -12.64),
    (-6.35, -5.4, -12.94),
    (-6.35, -5.4, -12.34),
    (-6.65, -5.4, -12.64),
    (-6.05, -5.4, -10.1),
    (-6.35, -5.4, -10.4),
    (-6.35, -5.4, -9.8),
    (-6.65, -5.4, -10.1),
    (-3.51, -5.4, -12.64),
    (-3.81, -5.4, -12.94),
    (-3.81, -5.4, -12.34),
    (-4.11, -5.4, -12.64),
    (-3.51, -5.4, -10.1),
    (-3.81, -5.4, -10.4),
    (-3.81, -5.4, -9.8),
    (-4.11, -5.4, -10.1),
    (-0.97, -5.4, -12.64),
    (-1.27, -5.4, -12.94),
    (-1.27, -5.4, -12.34),
    (-1.57, -5.4, -12.64),
    (-0.97, -5.4, -10.1),
    (-1.27, -5.4, -10.4),
    (-1.27, -5.4, -9.8),
    (-1.57, -5.4, -10.1),
    (1.57, -5.4, -12.64),
    (1.27, -5.4, -12.94),
    (1.27, -5.4, -12.34),
    (0.97, -5.4, -12.64),
    (1.57, -5.4, -10.1),
    (1.27, -5.4, -10.4),
    (1.27, -5.4, -9.8),
    (0.97, -5.4, -10.1),
    (4.11, -5.4, -12.64),
    (3.81, -5.4, -12.94),
    (3.81, -5.4, -12.34),
    (3.51, -5.4, -12.64),
    (4.11, -5.4, -10.1),
    (3.81, -5.4, -10.4),
    (3.81, -5.4, -9.8),
    (3.51, -5.4, -10.1),
    (6.65, -5.4, -12.64),
    (6.35, -5.4, -12.94),
    (6.35, -5.4, -12.34),
    (6.05, -5.4, -12.64),
    (6.65, -5.4, -10.1),
    (6.35, -5.4, -10.4),
    (6.35, -5.4, -9.8),
    (6.05, -5.4, -10.1),
    (9.19, -5.4, -12.64),
    (8.89, -5.4, -12.94),
    (8.89, -5.4, -12.34),
    (8.59, -5.4, -12.64),
    (9.19, -5.4, -10.1),
    (8.89, -5.4, -10.4),
    (8.89, -5.4, -9.8),
    (8.59, -5.4, -10.1),
]))
chamfer2.Size = 0.2

doc.recompute()
